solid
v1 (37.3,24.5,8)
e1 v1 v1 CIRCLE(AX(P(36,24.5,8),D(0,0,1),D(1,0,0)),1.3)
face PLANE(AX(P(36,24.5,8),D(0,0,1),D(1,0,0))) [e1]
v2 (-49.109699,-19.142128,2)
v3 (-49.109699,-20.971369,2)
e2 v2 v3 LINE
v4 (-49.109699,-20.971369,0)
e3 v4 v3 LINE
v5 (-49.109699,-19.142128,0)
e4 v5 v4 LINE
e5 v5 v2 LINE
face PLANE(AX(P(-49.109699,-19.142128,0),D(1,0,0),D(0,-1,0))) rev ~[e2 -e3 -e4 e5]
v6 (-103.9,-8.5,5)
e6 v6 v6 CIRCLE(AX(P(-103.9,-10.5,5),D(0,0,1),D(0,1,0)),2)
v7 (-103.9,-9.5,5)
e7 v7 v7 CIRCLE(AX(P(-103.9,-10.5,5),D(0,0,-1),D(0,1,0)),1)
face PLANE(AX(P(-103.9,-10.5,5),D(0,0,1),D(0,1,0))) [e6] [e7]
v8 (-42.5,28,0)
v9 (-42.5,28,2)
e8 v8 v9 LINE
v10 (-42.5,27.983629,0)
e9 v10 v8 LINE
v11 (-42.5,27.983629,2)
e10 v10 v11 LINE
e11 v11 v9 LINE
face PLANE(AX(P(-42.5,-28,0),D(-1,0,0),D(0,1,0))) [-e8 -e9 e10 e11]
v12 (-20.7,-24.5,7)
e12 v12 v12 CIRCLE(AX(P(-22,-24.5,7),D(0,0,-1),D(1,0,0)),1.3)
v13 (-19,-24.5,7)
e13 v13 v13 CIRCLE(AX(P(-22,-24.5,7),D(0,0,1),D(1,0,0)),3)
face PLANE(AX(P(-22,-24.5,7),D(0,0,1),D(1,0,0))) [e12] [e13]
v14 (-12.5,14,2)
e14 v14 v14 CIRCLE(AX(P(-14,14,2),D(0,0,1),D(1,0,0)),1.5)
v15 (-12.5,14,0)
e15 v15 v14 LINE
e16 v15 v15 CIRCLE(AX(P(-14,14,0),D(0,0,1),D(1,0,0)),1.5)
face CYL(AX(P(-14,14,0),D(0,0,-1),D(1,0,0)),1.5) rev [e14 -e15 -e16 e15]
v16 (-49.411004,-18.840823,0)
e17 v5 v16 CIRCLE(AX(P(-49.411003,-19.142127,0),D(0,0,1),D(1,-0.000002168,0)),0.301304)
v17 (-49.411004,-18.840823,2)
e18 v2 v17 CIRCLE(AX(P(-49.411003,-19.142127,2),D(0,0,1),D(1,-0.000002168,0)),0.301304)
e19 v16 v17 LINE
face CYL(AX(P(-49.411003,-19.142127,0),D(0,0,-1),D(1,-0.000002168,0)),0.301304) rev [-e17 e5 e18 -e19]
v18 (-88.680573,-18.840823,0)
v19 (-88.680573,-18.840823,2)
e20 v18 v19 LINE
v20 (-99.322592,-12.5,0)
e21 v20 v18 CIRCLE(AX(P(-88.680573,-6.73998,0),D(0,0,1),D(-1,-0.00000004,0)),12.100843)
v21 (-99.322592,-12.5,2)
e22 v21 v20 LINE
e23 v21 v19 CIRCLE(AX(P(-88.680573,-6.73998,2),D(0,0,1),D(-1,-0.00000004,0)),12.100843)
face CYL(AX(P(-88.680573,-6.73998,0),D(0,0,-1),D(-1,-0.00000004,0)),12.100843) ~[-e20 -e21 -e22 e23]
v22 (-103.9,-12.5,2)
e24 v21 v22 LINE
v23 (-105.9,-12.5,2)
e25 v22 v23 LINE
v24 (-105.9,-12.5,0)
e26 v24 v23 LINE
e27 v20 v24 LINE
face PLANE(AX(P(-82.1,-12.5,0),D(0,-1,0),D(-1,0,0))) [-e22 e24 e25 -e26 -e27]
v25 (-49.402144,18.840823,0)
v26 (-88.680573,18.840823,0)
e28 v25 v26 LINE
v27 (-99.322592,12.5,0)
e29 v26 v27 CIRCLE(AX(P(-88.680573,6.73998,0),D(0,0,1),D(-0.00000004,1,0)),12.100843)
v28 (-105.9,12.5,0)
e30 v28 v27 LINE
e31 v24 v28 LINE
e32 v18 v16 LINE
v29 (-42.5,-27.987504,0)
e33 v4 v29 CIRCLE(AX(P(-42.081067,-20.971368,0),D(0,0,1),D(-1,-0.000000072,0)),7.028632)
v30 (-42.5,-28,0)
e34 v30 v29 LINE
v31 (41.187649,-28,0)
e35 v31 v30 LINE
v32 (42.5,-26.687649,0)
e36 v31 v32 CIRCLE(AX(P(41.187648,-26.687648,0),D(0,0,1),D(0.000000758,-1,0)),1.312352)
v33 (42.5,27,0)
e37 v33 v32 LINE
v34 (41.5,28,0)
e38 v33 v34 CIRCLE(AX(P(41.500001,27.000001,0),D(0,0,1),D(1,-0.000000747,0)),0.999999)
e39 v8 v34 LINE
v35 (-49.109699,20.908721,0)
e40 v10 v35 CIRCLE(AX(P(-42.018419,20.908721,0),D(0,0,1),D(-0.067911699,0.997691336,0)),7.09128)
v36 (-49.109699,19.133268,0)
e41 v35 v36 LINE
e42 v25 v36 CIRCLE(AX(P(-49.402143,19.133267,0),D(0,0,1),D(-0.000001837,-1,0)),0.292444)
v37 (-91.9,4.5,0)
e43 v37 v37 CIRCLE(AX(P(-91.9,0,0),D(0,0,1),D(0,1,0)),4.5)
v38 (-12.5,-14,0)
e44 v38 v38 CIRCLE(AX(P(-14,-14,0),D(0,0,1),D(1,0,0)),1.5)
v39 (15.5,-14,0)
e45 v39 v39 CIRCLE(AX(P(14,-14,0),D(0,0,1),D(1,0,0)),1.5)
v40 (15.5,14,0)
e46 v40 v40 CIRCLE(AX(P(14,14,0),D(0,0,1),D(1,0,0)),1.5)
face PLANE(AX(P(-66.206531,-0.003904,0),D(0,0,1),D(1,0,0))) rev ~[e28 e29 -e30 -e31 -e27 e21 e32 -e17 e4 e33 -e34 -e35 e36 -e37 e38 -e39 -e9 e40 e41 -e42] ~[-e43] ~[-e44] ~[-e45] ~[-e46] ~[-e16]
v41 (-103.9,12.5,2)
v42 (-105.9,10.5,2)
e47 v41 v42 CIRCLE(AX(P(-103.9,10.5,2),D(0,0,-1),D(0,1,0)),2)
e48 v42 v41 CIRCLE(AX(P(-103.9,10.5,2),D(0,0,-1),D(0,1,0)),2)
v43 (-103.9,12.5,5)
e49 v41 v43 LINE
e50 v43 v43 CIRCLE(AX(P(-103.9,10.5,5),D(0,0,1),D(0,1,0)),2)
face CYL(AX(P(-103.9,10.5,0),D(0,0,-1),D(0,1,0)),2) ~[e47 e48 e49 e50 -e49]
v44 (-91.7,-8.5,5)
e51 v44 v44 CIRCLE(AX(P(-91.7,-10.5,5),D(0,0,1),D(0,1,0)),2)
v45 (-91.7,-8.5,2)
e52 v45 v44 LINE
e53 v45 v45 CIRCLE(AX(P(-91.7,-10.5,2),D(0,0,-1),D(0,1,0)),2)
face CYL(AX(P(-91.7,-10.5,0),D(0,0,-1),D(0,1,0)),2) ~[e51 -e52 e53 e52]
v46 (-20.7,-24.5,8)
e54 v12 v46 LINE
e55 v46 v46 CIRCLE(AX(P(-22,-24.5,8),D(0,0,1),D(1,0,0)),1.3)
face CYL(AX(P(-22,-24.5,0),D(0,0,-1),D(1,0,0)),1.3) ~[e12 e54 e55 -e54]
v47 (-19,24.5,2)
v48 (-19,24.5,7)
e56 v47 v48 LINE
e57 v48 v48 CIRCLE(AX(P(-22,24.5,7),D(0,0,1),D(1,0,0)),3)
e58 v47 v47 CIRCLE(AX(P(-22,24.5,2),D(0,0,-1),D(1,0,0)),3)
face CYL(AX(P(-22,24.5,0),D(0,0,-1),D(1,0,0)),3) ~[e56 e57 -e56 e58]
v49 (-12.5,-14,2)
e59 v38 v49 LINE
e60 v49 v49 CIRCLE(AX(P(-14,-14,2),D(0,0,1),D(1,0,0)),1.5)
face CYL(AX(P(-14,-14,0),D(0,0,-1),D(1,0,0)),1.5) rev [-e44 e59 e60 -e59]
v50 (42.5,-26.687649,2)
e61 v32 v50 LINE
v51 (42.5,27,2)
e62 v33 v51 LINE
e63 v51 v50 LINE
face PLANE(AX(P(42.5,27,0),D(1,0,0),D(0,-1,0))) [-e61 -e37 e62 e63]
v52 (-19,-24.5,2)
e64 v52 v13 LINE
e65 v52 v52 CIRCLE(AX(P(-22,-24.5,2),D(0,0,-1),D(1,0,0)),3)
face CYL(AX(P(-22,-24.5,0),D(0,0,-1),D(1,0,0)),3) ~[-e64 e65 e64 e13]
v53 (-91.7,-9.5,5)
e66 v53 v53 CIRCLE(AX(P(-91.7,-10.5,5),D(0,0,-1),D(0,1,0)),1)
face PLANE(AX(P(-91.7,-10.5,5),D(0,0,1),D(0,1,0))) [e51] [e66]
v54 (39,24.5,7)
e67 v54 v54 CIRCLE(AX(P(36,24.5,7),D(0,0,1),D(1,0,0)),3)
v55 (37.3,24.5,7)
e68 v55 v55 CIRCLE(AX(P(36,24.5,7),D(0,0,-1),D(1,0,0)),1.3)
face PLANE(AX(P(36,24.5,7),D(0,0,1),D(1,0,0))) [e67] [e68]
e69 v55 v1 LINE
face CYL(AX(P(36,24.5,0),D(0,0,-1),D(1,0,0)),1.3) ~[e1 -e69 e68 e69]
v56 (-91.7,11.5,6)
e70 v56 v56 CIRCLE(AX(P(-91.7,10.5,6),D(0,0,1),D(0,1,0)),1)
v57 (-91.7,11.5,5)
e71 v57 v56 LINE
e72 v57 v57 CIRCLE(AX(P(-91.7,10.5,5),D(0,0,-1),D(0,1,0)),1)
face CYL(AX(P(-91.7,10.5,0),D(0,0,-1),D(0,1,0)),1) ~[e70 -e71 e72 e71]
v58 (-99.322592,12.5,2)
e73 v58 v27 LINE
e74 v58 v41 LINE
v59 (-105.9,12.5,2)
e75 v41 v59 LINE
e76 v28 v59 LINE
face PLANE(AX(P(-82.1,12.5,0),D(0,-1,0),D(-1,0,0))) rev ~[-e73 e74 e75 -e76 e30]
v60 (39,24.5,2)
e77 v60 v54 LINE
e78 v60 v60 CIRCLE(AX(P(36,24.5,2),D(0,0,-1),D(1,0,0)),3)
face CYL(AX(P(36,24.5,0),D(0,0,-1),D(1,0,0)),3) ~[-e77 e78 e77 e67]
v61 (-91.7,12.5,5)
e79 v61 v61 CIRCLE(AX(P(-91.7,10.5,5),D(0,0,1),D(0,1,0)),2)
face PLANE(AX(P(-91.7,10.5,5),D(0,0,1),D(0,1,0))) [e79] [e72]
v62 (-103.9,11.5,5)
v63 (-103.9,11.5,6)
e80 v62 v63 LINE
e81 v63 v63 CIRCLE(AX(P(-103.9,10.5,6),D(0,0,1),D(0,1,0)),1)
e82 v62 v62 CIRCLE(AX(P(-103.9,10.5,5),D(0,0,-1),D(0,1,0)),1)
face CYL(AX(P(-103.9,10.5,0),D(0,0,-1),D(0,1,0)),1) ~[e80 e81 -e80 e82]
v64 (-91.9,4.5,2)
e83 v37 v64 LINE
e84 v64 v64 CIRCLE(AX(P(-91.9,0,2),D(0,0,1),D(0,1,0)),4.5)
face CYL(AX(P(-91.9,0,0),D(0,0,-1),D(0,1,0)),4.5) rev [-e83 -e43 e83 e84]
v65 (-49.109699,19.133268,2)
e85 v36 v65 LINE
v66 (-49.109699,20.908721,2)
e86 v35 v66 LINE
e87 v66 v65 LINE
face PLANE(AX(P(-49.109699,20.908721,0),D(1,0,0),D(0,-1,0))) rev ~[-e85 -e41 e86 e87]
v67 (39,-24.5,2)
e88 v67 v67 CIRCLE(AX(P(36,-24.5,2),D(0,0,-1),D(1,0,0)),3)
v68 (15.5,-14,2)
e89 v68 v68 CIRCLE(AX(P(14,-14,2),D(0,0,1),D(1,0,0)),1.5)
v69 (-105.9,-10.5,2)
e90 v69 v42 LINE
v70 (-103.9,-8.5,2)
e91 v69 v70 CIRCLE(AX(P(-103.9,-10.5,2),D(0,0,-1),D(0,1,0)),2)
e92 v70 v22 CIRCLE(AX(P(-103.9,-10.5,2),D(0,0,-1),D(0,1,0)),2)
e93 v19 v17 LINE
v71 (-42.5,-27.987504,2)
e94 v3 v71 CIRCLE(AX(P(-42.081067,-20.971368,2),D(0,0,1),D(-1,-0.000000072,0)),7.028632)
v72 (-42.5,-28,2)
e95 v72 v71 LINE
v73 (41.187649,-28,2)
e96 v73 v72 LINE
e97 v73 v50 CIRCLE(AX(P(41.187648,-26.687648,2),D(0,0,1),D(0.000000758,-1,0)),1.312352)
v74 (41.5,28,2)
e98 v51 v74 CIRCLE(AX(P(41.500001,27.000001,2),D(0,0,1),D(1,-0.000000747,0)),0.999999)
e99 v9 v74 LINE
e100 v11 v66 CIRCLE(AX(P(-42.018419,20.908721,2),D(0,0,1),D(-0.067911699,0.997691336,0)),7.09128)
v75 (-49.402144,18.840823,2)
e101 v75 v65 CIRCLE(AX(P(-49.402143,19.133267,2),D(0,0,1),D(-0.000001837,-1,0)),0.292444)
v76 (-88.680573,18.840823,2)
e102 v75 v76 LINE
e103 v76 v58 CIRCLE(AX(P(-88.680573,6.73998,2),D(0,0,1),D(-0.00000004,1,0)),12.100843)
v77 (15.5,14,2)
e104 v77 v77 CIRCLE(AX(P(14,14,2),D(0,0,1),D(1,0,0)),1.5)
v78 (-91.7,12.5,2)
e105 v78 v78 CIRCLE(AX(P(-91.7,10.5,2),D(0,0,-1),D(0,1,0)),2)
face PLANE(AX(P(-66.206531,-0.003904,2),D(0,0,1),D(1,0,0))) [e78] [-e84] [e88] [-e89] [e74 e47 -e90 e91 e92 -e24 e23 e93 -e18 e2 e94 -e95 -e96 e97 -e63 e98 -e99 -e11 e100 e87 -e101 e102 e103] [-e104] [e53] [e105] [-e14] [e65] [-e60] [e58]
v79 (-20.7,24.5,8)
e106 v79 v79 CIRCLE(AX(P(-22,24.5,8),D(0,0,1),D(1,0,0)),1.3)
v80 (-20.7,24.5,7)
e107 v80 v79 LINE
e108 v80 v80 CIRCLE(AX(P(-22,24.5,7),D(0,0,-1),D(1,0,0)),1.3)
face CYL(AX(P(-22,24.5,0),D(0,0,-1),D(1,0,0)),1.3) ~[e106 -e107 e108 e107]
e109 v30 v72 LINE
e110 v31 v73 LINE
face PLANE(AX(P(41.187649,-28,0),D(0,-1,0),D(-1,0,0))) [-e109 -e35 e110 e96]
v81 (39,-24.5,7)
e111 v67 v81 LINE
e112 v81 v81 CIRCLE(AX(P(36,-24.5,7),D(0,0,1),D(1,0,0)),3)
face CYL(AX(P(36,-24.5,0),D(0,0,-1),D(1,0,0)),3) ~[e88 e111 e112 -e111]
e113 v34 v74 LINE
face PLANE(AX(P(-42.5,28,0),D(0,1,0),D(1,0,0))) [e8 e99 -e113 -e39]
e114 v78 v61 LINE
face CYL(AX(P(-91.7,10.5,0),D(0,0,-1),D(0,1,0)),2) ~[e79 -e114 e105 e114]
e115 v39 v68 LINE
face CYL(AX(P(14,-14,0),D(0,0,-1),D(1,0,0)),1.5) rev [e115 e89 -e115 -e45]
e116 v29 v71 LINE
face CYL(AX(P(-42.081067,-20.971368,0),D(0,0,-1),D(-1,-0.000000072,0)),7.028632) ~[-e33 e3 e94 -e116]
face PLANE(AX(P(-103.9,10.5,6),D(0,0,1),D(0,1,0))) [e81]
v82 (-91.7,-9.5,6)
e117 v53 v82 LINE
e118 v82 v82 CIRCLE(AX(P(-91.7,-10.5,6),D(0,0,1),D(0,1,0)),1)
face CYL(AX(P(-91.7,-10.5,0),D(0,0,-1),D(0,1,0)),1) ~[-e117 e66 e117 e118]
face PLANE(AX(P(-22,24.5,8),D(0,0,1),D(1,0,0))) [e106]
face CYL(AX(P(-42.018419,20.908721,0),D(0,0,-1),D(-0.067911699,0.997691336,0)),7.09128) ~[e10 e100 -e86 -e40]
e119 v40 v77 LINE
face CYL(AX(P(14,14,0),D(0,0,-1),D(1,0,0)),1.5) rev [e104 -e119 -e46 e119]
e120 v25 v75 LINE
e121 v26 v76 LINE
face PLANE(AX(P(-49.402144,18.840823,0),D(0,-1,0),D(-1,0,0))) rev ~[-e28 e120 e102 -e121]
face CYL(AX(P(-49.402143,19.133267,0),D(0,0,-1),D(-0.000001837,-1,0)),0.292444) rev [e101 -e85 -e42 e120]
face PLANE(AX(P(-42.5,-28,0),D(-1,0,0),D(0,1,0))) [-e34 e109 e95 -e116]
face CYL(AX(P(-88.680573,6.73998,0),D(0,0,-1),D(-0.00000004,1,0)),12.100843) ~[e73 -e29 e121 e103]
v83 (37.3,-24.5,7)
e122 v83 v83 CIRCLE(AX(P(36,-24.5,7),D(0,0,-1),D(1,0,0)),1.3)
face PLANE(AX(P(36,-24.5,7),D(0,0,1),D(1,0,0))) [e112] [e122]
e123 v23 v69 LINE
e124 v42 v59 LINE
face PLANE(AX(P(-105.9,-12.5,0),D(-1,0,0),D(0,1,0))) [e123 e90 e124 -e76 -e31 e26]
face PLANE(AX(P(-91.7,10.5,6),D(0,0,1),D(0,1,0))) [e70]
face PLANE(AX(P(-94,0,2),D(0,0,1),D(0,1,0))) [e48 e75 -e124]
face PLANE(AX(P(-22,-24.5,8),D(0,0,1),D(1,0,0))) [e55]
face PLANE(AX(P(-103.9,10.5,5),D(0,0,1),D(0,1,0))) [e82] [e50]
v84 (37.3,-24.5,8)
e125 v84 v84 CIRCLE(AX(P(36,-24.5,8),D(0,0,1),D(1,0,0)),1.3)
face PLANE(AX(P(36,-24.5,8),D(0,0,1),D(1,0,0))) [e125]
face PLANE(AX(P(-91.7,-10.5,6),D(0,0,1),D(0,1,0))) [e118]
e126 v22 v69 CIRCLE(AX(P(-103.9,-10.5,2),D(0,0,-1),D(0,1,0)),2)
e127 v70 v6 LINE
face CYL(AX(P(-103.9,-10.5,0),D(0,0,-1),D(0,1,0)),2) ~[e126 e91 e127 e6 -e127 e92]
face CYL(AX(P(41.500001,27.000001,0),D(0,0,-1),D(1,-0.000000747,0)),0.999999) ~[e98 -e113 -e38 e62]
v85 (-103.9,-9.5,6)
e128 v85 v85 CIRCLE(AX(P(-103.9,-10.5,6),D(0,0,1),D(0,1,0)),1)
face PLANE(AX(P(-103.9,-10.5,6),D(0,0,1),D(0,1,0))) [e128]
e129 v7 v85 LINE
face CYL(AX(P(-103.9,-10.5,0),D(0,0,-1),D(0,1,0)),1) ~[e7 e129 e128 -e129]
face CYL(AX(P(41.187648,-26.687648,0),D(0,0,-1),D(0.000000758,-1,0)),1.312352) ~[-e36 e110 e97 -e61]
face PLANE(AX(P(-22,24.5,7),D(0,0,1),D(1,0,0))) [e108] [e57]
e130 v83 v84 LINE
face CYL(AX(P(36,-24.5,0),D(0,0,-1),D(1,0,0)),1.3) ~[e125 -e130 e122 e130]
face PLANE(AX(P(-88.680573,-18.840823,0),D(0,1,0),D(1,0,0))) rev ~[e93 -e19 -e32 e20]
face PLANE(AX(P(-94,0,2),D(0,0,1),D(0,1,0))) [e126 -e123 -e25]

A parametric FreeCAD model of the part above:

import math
import FreeCAD as App
import Part
import Sketcher
from FreeCAD import Vector
Q = App.Units.Quantity


def add_polygon(sketch, points):
    """Adds a closed chain of lines whose ends are joined by coincident constraints."""
    first, n = sketch.GeometryCount, len(points)
    for a, b in zip(points, points[1:] + points[:1]):
        sketch.addGeometry(Part.LineSegment(App.Vector(*a, 0), App.Vector(*b, 0)), False)
    for i in range(n):
        sketch.addConstraint(Sketcher.Constraint("Coincident", first + i, 2, first + (i + 1) % n, 1))

doc = App.newDocument("Part")
body = doc.addObject("PartDesign::Body", "Body")

# Sketch on XY plane
sketch1 = doc.addObject("Sketcher::SketchObject", "Sketch")
body.addObject(sketch1)
sketch1.AttachmentSupport = (doc.XY_Plane, [""])
sketch1.MapMode = "FlatFace"
sketch1.addGeometry(Part.LineSegment(Vector(41.5, 28, 0), Vector(-42.5, 28, 0)), False)
sketch1.addGeometry(Part.LineSegment(Vector(-42.5, 28, 0), Vector(-42.5, -28, 0)), False)
sketch1.addGeometry(Part.LineSegment(Vector(-42.5, -28, 0), Vector(41.2, -28, 0)), False)
sketch1.addGeometry(Part.ArcOfCircle(Part.Circle(Vector(41.2, -26.7, 0), Vector(0, 0, 1), 1.3), math.radians(-90), math.radians(0)), False)
sketch1.addGeometry(Part.LineSegment(Vector(42.5, -26.7, 0), Vector(42.5, 27, 0)), False)
sketch1.addGeometry(Part.ArcOfCircle(Part.Circle(Vector(41.5, 27, 0), Vector(0, 0, 1), 1), math.radians(0), math.radians(90)), False)
sketch1.addGeometry(Part.Circle(Vector(36, -24.5, 0), Vector(0, 0, 1), 1.4), False)
sketch1.addGeometry(Part.Circle(Vector(14, -14, 0), Vector(0, 0, 1), 1.5), False)
sketch1.addGeometry(Part.Circle(Vector(-22, -24.5, 0), Vector(0, 0, 1), 1.4), False)
sketch1.addGeometry(Part.Circle(Vector(-14, -14, 0), Vector(0, 0, 1), 1.5), False)
sketch1.addGeometry(Part.Circle(Vector(36, 24.5, 0), Vector(0, 0, 1), 1.4), False)
sketch1.addGeometry(Part.Circle(Vector(14, 14, 0), Vector(0, 0, 1), 1.5), False)
sketch1.addGeometry(Part.Circle(Vector(-14, 14, 0), Vector(0, 0, 1), 1.5), False)
sketch1.addGeometry(Part.Circle(Vector(-22, 24.5, 0), Vector(0, 0, 1), 1.4), False)
sketch1.addConstraint(Sketcher.Constraint("Coincident", 0, 2, 1, 1))
sketch1.addConstraint(Sketcher.Constraint("Coincident", 1, 2, 2, 1))
sketch1.addConstraint(Sketcher.Constraint("Tangent", 2, 2, 3, 1))
sketch1.addConstraint(Sketcher.Constraint("Tangent", 3, 2, 4, 1))
sketch1.addConstraint(Sketcher.Constraint("Tangent", 4, 2, 5, 1))
sketch1.addConstraint(Sketcher.Constraint("Tangent", 5, 2, 0, 1))
sketch1.addConstraint(Sketcher.Constraint("Horizontal", 0))
sketch1.addConstraint(Sketcher.Constraint("Vertical", 1))
sketch1.addConstraint(Sketcher.Constraint("Horizontal", 2))
sketch1.addConstraint(Sketcher.Constraint("Vertical", 4))
sketch1.addConstraint(Sketcher.Constraint("Equal", 6, 8))
sketch1.addConstraint(Sketcher.Constraint("Equal", 7, 9))
sketch1.addConstraint(Sketcher.Constraint("Equal", 8, 10))
sketch1.addConstraint(Sketcher.Constraint("Equal", 9, 11))
sketch1.addConstraint(Sketcher.Constraint("Equal", 11, 12))
sketch1.addConstraint(Sketcher.Constraint("Equal", 10, 13))
sketch1.addConstraint(Sketcher.Constraint("Symmetric", 9, 3, 11, 3, -1, 1))
sketch1.addConstraint(Sketcher.Constraint("Symmetric", 7, 3, 12, 3, -1, 1))
sketch1.addConstraint(Sketcher.Constraint("Symmetric", 7, 3, 9, 3, -2))
sketch1.addConstraint(Sketcher.Constraint("Symmetric", 6, 3, 10, 3, -1))
sketch1.addConstraint(Sketcher.Constraint("Symmetric", 8, 3, 13, 3, -1))
sketch1.addConstraint(Sketcher.Constraint("Horizontal", 6, 3, 8, 3))
sketch1.addConstraint(Sketcher.Constraint("Diameter", 7, Q("3 mm")))
sketch1.addConstraint(Sketcher.Constraint("Radius", 5, Q("0.999999 mm")))
sketch1.addConstraint(Sketcher.Constraint("Diameter", 6, Q("2.8 mm")))
sketch1.addConstraint(Sketcher.Constraint("DistanceX", 0, 2, 0, 1, Q("84 mm")))
sketch1.addConstraint(Sketcher.Constraint("DistanceY", 1, 2, 1, 1, Q("56 mm")))
sketch1.addConstraint(Sketcher.Constraint("DistanceY", -1, 1, 5, 3, Q("27.000001 mm")))
sketch1.addConstraint(Sketcher.Constraint("DistanceX", -1, 1, 6, 3, Q("36 mm")))
sketch1.addConstraint(Sketcher.Constraint("DistanceX", -1, 1, 7, 3, Q("14 mm")))
sketch1.addConstraint(Sketcher.Constraint("DistanceY", 7, 3, -1, 1, Q("14 mm")))
sketch1.addConstraint(Sketcher.Constraint("DistanceX", 8, 3, -1, 1, Q("22 mm")))
sketch1.addConstraint(Sketcher.Constraint("DistanceY", 6, 3, 10, 3, Q("49 mm")))
sketch1.addConstraint(Sketcher.Constraint("DistanceX", -1, 1, 5, 3, Q("41.500001 mm")))
sketch1.addConstraint(Sketcher.Constraint("Radius", 3, Q("1.312352 mm")))
pad1 = doc.addObject("PartDesign::Pad", "Pad")
body.addObject(pad1)
pad1.Profile = sketch1
pad1.Length = 2
body2 = doc.addObject("PartDesign::Body", "Body001")

# Sketch on XY plane
sketch2 = doc.addObject("Sketcher::SketchObject", "Sketch001")
body2.addObject(sketch2)
sketch2.AttachmentSupport = (doc.getObject("XY_Plane001"), [""])
sketch2.MapMode = "FlatFace"
sketch2.addGeometry(Part.LineSegment(Vector(-49.4, 18.84, 0), Vector(-88.68, 18.84, 0)), False)
sketch2.addGeometry(Part.ArcOfCircle(Part.Circle(Vector(-88.68, 6.74, 0), Vector(0, 0, 1), 12.1), math.radians(90), math.radians(180)), False)
sketch2.addGeometry(Part.LineSegment(Vector(-100.78, 6.74, 0), Vector(-100.78, -6.74, 0)), False)
sketch2.addGeometry(Part.ArcOfCircle(Part.Circle(Vector(-88.68, -6.74, 0), Vector(0, 0, 1), 12.1), math.radians(-180), math.radians(-90)), False)
sketch2.addGeometry(Part.LineSegment(Vector(-88.68, -18.84, 0), Vector(-49.41, -18.84, 0)), False)
sketch2.addGeometry(Part.ArcOfCircle(Part.Circle(Vector(-49.41, -19.14, 0), Vector(0, 0, 1), 0.3), math.radians(0), math.radians(90)), False)
sketch2.addGeometry(Part.LineSegment(Vector(-49.11, -19.14, 0), Vector(-49.11, -20.97, 0)), False)
sketch2.addGeometry(Part.ArcOfCircle(Part.Circle(Vector(-42.08, -20.97, 0), Vector(0, 0, 1), 7.03), math.radians(-180), math.radians(-93)), False)
sketch2.addGeometry(Part.LineSegment(Vector(-42.5, -27.99, 0), Vector(-42.5, 27.98, 0)), False)
sketch2.addGeometry(Part.ArcOfCircle(Part.Circle(Vector(-42.02, 20.91, 0), Vector(0, 0, 1), 7.09), math.radians(94), math.radians(180)), False)
sketch2.addGeometry(Part.LineSegment(Vector(-49.11, 20.91, 0), Vector(-49.11, 19.13, 0)), False)
sketch2.addGeometry(Part.ArcOfCircle(Part.Circle(Vector(-49.4, 19.13, 0), Vector(0, 0, 1), 0.29), math.radians(-90), math.radians(0)), False)
sketch2.addGeometry(Part.Circle(Vector(-91.87, 0, 0), Vector(0, 0, 1), 6.35), False)
sketch2.addConstraint(Sketcher.Constraint("Tangent", 0, 2, 1, 1))
sketch2.addConstraint(Sketcher.Constraint("Tangent", 1, 2, 2, 1))
sketch2.addConstraint(Sketcher.Constraint("Tangent", 2, 2, 3, 1))
sketch2.addConstraint(Sketcher.Constraint("Tangent", 3, 2, 4, 1))
sketch2.addConstraint(Sketcher.Constraint("Coincident", 4, 2, 5, 2))
sketch2.addConstraint(Sketcher.Constraint("Coincident", 5, 1, 6, 1))
sketch2.addConstraint(Sketcher.Constraint("Tangent", 6, 2, 7, 1))
sketch2.addConstraint(Sketcher.Constraint("Coincident", 7, 2, 8, 1))
sketch2.addConstraint(Sketcher.Constraint("Coincident", 8, 2, 9, 1))
sketch2.addConstraint(Sketcher.Constraint("Tangent", 9, 2, 10, 1))
sketch2.addConstraint(Sketcher.Constraint("Tangent", 10, 2, 11, 2))
sketch2.addConstraint(Sketcher.Constraint("Tangent", 11, 1, 0, 1))
sketch2.addConstraint(Sketcher.Constraint("Horizontal", 0))
sketch2.addConstraint(Sketcher.Constraint("Vertical", 2))
sketch2.addConstraint(Sketcher.Constraint("Horizontal", 4))
sketch2.addConstraint(Sketcher.Constraint("Vertical", 6))
sketch2.addConstraint(Sketcher.Constraint("Vertical", 8))
sketch2.addConstraint(Sketcher.Constraint("Vertical", 10))
sketch2.addConstraint(Sketcher.Constraint("Equal", 1, 3))
sketch2.addConstraint(Sketcher.Constraint("PointOnObject", 12, 3, -1))
sketch2.addConstraint(Sketcher.Constraint("Vertical", 5, 3, 4, 2))
sketch2.addConstraint(Sketcher.Constraint("Vertical", 6, 2, 9, 2))
sketch2.addConstraint(Sketcher.Constraint("DistanceX", 7, 2, -1, 1, Q("42.5 mm")))
sketch2.addConstraint(Sketcher.Constraint("Radius", 7, Q("7.028632 mm")))
sketch2.addConstraint(Sketcher.Constraint("Radius", 9, Q("7.09128 mm")))
sketch2.addConstraint(Sketcher.Constraint("Diameter", 12, Q("12.706726 mm")))
sketch2.addConstraint(Sketcher.Constraint("Radius", 1, Q("12.100843 mm")))
sketch2.addConstraint(Sketcher.Constraint("Radius", 5, Q("0.301304 mm")))
sketch2.addConstraint(Sketcher.Constraint("Radius", 11, Q("0.292444 mm")))
sketch2.addConstraint(Sketcher.Constraint("DistanceX", 0, 2, 0, 1, Q("39.278429 mm")))
sketch2.addConstraint(Sketcher.Constraint("DistanceY", 2, 2, 2, 1, Q("13.47996 mm")))
sketch2.addConstraint(Sketcher.Constraint("DistanceY", 6, 2, 6, 1, Q("1.829241 mm")))
sketch2.addConstraint(Sketcher.Constraint("DistanceX", 5, 1, -1, 1, Q("49.109699 mm")))
sketch2.addConstraint(Sketcher.Constraint("DistanceY", 3, 3, 9, 3, Q("27.6487 mm")))
sketch2.addConstraint(Sketcher.Constraint("DistanceY", 8, 1, 8, 2, Q("55.971133 mm")))
sketch2.addConstraint(Sketcher.Constraint("DistanceY", -1, 1, 1, 3, Q("6.73998 mm")))
sketch2.addConstraint(Sketcher.Constraint("DistanceX", 12, 3, 7, 3, Q("49.790309 mm")))
pad2 = doc.addObject("PartDesign::Pad", "Pad001")
body2.addObject(pad2)
pad2.Profile = sketch2
pad2.Length = 2
body3 = doc.addObject("PartDesign::Body", "Body002")

# Sketch on XY plane
sketch3 = doc.addObject("Sketcher::SketchObject", "Sketch002")
body3.addObject(sketch3)
sketch3.AttachmentSupport = (doc.getObject("XY_Plane002"), [""])
sketch3.MapMode = "FlatFace"
sketch3.addGeometry(Part.Circle(Vector(0, 0, 0), Vector(0, 0, 1), 1.3), False)
sketch3.addConstraint(Sketcher.Constraint("Coincident", 0, 3, -1, 1))
sketch3.addConstraint(Sketcher.Constraint("Diameter", 0, Q("2.6 mm")))
pad3 = doc.addObject("PartDesign::Pad", "Pad002")
body3.addObject(pad3)
pad3.Profile = sketch3
pad3.Length = 8
body4 = doc.addObject("PartDesign::Body", "Body003")

# Sketch on XY plane
sketch4 = doc.addObject("Sketcher::SketchObject", "Sketch003")
body4.addObject(sketch4)
sketch4.AttachmentSupport = (doc.getObject("XY_Plane003"), [""])
sketch4.MapMode = "FlatFace"
sketch4.addGeometry(Part.Circle(Vector(0, 0, 0), Vector(0, 0, 1), 3), False)
sketch4.addConstraint(Sketcher.Constraint("Coincident", 0, 3, -1, 1))
sketch4.addConstraint(Sketcher.Constraint("Diameter", 0, Q("6 mm")))
pad4 = doc.addObject("PartDesign::Pad", "Pad003")
body4.addObject(pad4)
pad4.Profile = sketch4
pad4.Length = 7
doc.recompute()

boolean = doc.addObject("PartDesign::Boolean", "Boolean")
body4.addObject(boolean)
boolean.Type = "Fuse"
boolean.addObjects([body3])
body5 = doc.addObject("PartDesign::Body", "Body004")
doc.recompute()

body4.Placement = App.Placement(Vector(-39, 24.5, 0), App.Rotation(Vector(0, 0, 1), 0))
boolean2 = doc.addObject("PartDesign::Boolean", "Boolean001")
body5.addObject(boolean2)
boolean2.Type = "Fuse"
boolean2.addObjects([body4])
body6 = doc.addObject("PartDesign::Body", "Body005")

# Sketch on XY plane
sketch5 = doc.addObject("Sketcher::SketchObject", "Sketch004")
body6.addObject(sketch5)
sketch5.AttachmentSupport = (doc.getObject("XY_Plane005"), [""])
sketch5.MapMode = "FlatFace"
sketch5.addGeometry(Part.Circle(Vector(0, 0, 0), Vector(0, 0, 1), 1.3), False)
sketch5.addConstraint(Sketcher.Constraint("Coincident", 0, 3, -1, 1))
sketch5.addConstraint(Sketcher.Constraint("Diameter", 0, Q("2.6 mm")))
pad5 = doc.addObject("PartDesign::Pad", "Pad004")
body6.addObject(pad5)
pad5.Profile = sketch5
pad5.Length = 8
body7 = doc.addObject("PartDesign::Body", "Body006")

# Sketch on XY plane
sketch6 = doc.addObject("Sketcher::SketchObject", "Sketch005")
body7.addObject(sketch6)
sketch6.AttachmentSupport = (doc.getObject("XY_Plane006"), [""])
sketch6.MapMode = "FlatFace"
sketch6.addGeometry(Part.Circle(Vector(0, 0, 0), Vector(0, 0, 1), 3), False)
sketch6.addConstraint(Sketcher.Constraint("Coincident", 0, 3, -1, 1))
sketch6.addConstraint(Sketcher.Constraint("Diameter", 0, Q("6 mm")))
pad6 = doc.addObject("PartDesign::Pad", "Pad005")
body7.addObject(pad6)
pad6.Profile = sketch6
pad6.Length = 7
doc.recompute()

boolean3 = doc.addObject("PartDesign::Boolean", "Boolean002")
body7.addObject(boolean3)
boolean3.Type = "Fuse"
boolean3.addObjects([body6])
body8 = doc.addObject("PartDesign::Body", "Body007")
body8.AllowCompound = True
doc.recompute()

body7.Placement = App.Placement(Vector(-39, -24.5, 0), App.Rotation(Vector(0, 0, 1), 0))
boolean4 = doc.addObject("PartDesign::Boolean", "Boolean003")
body8.addObject(boolean4)
boolean4.Type = "Fuse"
boolean4.addObjects([body7])
doc.recompute()

boolean5 = doc.addObject("PartDesign::Boolean", "Boolean004")
body8.addObject(boolean5)
boolean5.Type = "Fuse"
boolean5.addObjects([body5])
body9 = doc.addObject("PartDesign::Body", "Body008")
body9.AllowCompound = True
doc.recompute()

body8.Placement = App.Placement(Vector(58, 0, 0), App.Rotation(Vector(0, 0, 1), 0))
boolean6 = doc.addObject("PartDesign::Boolean", "Boolean005")
body9.addObject(boolean6)
boolean6.Type = "Fuse"
boolean6.addObjects([body8])
body10 = doc.addObject("PartDesign::Body", "Body009")

# Sketch on XY plane
sketch7 = doc.addObject("Sketcher::SketchObject", "Sketch006")
body10.addObject(sketch7)
sketch7.AttachmentSupport = (doc.getObject("XY_Plane009"), [""])
sketch7.MapMode = "FlatFace"
sketch7.addGeometry(Part.Circle(Vector(0, 0, 0), Vector(0, 0, 1), 1.3), False)
sketch7.addConstraint(Sketcher.Constraint("Coincident", 0, 3, -1, 1))
sketch7.addConstraint(Sketcher.Constraint("Diameter", 0, Q("2.6 mm")))
pad7 = doc.addObject("PartDesign::Pad", "Pad006")
body10.addObject(pad7)
pad7.Profile = sketch7
pad7.Length = 8
body11 = doc.addObject("PartDesign::Body", "Body010")

# Sketch on XY plane
sketch8 = doc.addObject("Sketcher::SketchObject", "Sketch007")
body11.addObject(sketch8)
sketch8.AttachmentSupport = (doc.getObject("XY_Plane010"), [""])
sketch8.MapMode = "FlatFace"
sketch8.addGeometry(Part.Circle(Vector(0, 0, 0), Vector(0, 0, 1), 3), False)
sketch8.addConstraint(Sketcher.Constraint("Coincident", 0, 3, -1, 1))
sketch8.addConstraint(Sketcher.Constraint("Diameter", 0, Q("6 mm")))
pad8 = doc.addObject("PartDesign::Pad", "Pad007")
body11.addObject(pad8)
pad8.Profile = sketch8
pad8.Length = 7
doc.recompute()

boolean7 = doc.addObject("PartDesign::Boolean", "Boolean006")
body11.addObject(boolean7)
boolean7.Type = "Fuse"
boolean7.addObjects([body10])
body12 = doc.addObject("PartDesign::Body", "Body011")
doc.recompute()

body11.Placement = App.Placement(Vector(-39, 24.5, 0), App.Rotation(Vector(0, 0, 1), 0))
boolean8 = doc.addObject("PartDesign::Boolean", "Boolean007")
body12.addObject(boolean8)
boolean8.Type = "Fuse"
boolean8.addObjects([body11])
body13 = doc.addObject("PartDesign::Body", "Body012")

# Sketch on XY plane
sketch9 = doc.addObject("Sketcher::SketchObject", "Sketch008")
body13.addObject(sketch9)
sketch9.AttachmentSupport = (doc.getObject("XY_Plane012"), [""])
sketch9.MapMode = "FlatFace"
sketch9.addGeometry(Part.Circle(Vector(0, 0, 0), Vector(0, 0, 1), 1.3), False)
sketch9.addConstraint(Sketcher.Constraint("Coincident", 0, 3, -1, 1))
sketch9.addConstraint(Sketcher.Constraint("Diameter", 0, Q("2.6 mm")))
pad9 = doc.addObject("PartDesign::Pad", "Pad008")
body13.addObject(pad9)
pad9.Profile = sketch9
pad9.Length = 8
body14 = doc.addObject("PartDesign::Body", "Body013")

# Sketch on XY plane
sketch10 = doc.addObject("Sketcher::SketchObject", "Sketch009")
body14.addObject(sketch10)
sketch10.AttachmentSupport = (doc.getObject("XY_Plane013"), [""])
sketch10.MapMode = "FlatFace"
sketch10.addGeometry(Part.Circle(Vector(0, 0, 0), Vector(0, 0, 1), 3), False)
sketch10.addConstraint(Sketcher.Constraint("Coincident", 0, 3, -1, 1))
sketch10.addConstraint(Sketcher.Constraint("Diameter", 0, Q("6 mm")))
pad10 = doc.addObject("PartDesign::Pad", "Pad009")
body14.addObject(pad10)
pad10.Profile = sketch10
pad10.Length = 7
doc.recompute()

boolean9 = doc.addObject("PartDesign::Boolean", "Boolean008")
body14.addObject(boolean9)
boolean9.Type = "Fuse"
boolean9.addObjects([body13])
body15 = doc.addObject("PartDesign::Body", "Body014")
body15.AllowCompound = True
doc.recompute()

body14.Placement = App.Placement(Vector(-39, -24.5, 0), App.Rotation(Vector(0, 0, 1), 0))
boolean10 = doc.addObject("PartDesign::Boolean", "Boolean009")
body15.addObject(boolean10)
boolean10.Type = "Fuse"
boolean10.addObjects([body14])
doc.recompute()

boolean11 = doc.addObject("PartDesign::Boolean", "Boolean010")
body15.addObject(boolean11)
boolean11.Type = "Fuse"
boolean11.addObjects([body12])
doc.recompute()

boolean12 = doc.addObject("PartDesign::Boolean", "Boolean011")
body15.addObject(boolean12)
boolean12.Type = "Fuse"
boolean12.addObjects([body9])
body16 = doc.addObject("PartDesign::Body", "Body015")
body16.AllowCompound = True
doc.recompute()

body15.Placement = App.Placement(Vector(17, 0, 0), App.Rotation(Vector(0, 0, 1), 0))
boolean13 = doc.addObject("PartDesign::Boolean", "Boolean012")
body16.addObject(boolean13)
boolean13.Type = "Fuse"
boolean13.addObjects([body15])
body17 = doc.addObject("PartDesign::Body", "Body016")

# Sketch on XY plane
sketch11 = doc.addObject("Sketcher::SketchObject", "Sketch010")
body17.addObject(sketch11)
sketch11.AttachmentSupport = (doc.getObject("XY_Plane016"), [""])
sketch11.MapMode = "FlatFace"
sketch11.addGeometry(Part.Circle(Vector(0, 0, 0), Vector(0, 0, 1), 1), False)
sketch11.addConstraint(Sketcher.Constraint("Coincident", 0, 3, -1, 1))
sketch11.addConstraint(Sketcher.Constraint("Diameter", 0, Q("2 mm")))
pad11 = doc.addObject("PartDesign::Pad", "Pad010")
body17.addObject(pad11)
pad11.Profile = sketch11
pad11.Length = 6
body18 = doc.addObject("PartDesign::Body", "Body017")

# Sketch on XY plane
sketch12 = doc.addObject("Sketcher::SketchObject", "Sketch011")
body18.addObject(sketch12)
sketch12.AttachmentSupport = (doc.getObject("XY_Plane017"), [""])
sketch12.MapMode = "FlatFace"
sketch12.addGeometry(Part.Circle(Vector(0, 0, 0), Vector(0, 0, 1), 2), False)
sketch12.addConstraint(Sketcher.Constraint("Coincident", 0, 3, -1, 1))
sketch12.addConstraint(Sketcher.Constraint("Diameter", 0, Q("4 mm")))
pad12 = doc.addObject("PartDesign::Pad", "Pad011")
body18.addObject(pad12)
pad12.Profile = sketch12
pad12.Length = 5
doc.recompute()

boolean14 = doc.addObject("PartDesign::Boolean", "Boolean013")
body18.addObject(boolean14)
boolean14.Type = "Fuse"
boolean14.addObjects([body17])
body19 = doc.addObject("PartDesign::Body", "Body018")
doc.recompute()

body18.Placement = App.Placement(Vector(10.5, -2.3, 0), App.Rotation(Vector(0, 0, 1), 0))
boolean15 = doc.addObject("PartDesign::Boolean", "Boolean014")
body19.addObject(boolean15)
boolean15.Type = "Fuse"
boolean15.addObjects([body18])
body20 = doc.addObject("PartDesign::Body", "Body019")

# Sketch on XY plane
sketch13 = doc.addObject("Sketcher::SketchObject", "Sketch012")
body20.addObject(sketch13)
sketch13.AttachmentSupport = (doc.getObject("XY_Plane019"), [""])
sketch13.MapMode = "FlatFace"
sketch13.addGeometry(Part.Circle(Vector(0, 0, 0), Vector(0, 0, 1), 1), False)
sketch13.addConstraint(Sketcher.Constraint("Coincident", 0, 3, -1, 1))
sketch13.addConstraint(Sketcher.Constraint("Diameter", 0, Q("2 mm")))
pad13 = doc.addObject("PartDesign::Pad", "Pad012")
body20.addObject(pad13)
pad13.Profile = sketch13
pad13.Length = 6
body21 = doc.addObject("PartDesign::Body", "Body020")

# Sketch on XY plane
sketch14 = doc.addObject("Sketcher::SketchObject", "Sketch013")
body21.addObject(sketch14)
sketch14.AttachmentSupport = (doc.getObject("XY_Plane020"), [""])
sketch14.MapMode = "FlatFace"
sketch14.addGeometry(Part.Circle(Vector(0, 0, 0), Vector(0, 0, 1), 2), False)
sketch14.addConstraint(Sketcher.Constraint("Coincident", 0, 3, -1, 1))
sketch14.addConstraint(Sketcher.Constraint("Diameter", 0, Q("4 mm")))
pad14 = doc.addObject("PartDesign::Pad", "Pad013")
body21.addObject(pad14)
pad14.Profile = sketch14
pad14.Length = 5
doc.recompute()

boolean16 = doc.addObject("PartDesign::Boolean", "Boolean015")
body21.addObject(boolean16)
boolean16.Type = "Fuse"
boolean16.addObjects([body20])
body22 = doc.addObject("PartDesign::Body", "Body021")
body22.AllowCompound = True
doc.recompute()

body21.Placement = App.Placement(Vector(-10.5, -2.3, 0), App.Rotation(Vector(0, 0, 1), 0))
boolean17 = doc.addObject("PartDesign::Boolean", "Boolean016")
body22.addObject(boolean17)
boolean17.Type = "Fuse"
boolean17.addObjects([body21])
doc.recompute()

boolean18 = doc.addObject("PartDesign::Boolean", "Boolean017")
body22.addObject(boolean18)
boolean18.Type = "Fuse"
boolean18.addObjects([body19])
body23 = doc.addObject("PartDesign::Body", "Body022")
body23.AllowCompound = True
doc.recompute()

body22.Placement = App.Placement(Vector(0, 12.2, 0), App.Rotation(Vector(0, 0, 1), 0))
boolean19 = doc.addObject("PartDesign::Boolean", "Boolean018")
body23.addObject(boolean19)
boolean19.Type = "Fuse"
boolean19.addObjects([body22])
body24 = doc.addObject("PartDesign::Body", "Body023")

# Sketch on XY plane
sketch15 = doc.addObject("Sketcher::SketchObject", "Sketch014")
body24.addObject(sketch15)
sketch15.AttachmentSupport = (doc.getObject("XY_Plane023"), [""])
sketch15.MapMode = "FlatFace"
sketch15.addGeometry(Part.Circle(Vector(0, 0, 0), Vector(0, 0, 1), 1), False)
sketch15.addConstraint(Sketcher.Constraint("Coincident", 0, 3, -1, 1))
sketch15.addConstraint(Sketcher.Constraint("Diameter", 0, Q("2 mm")))
pad15 = doc.addObject("PartDesign::Pad", "Pad014")
body24.addObject(pad15)
pad15.Profile = sketch15
pad15.Length = 6
body25 = doc.addObject("PartDesign::Body", "Body024")

# Sketch on XY plane
sketch16 = doc.addObject("Sketcher::SketchObject", "Sketch015")
body25.addObject(sketch16)
sketch16.AttachmentSupport = (doc.getObject("XY_Plane024"), [""])
sketch16.MapMode = "FlatFace"
sketch16.addGeometry(Part.Circle(Vector(0, 0, 0), Vector(0, 0, 1), 2), False)
sketch16.addConstraint(Sketcher.Constraint("Coincident", 0, 3, -1, 1))
sketch16.addConstraint(Sketcher.Constraint("Diameter", 0, Q("4 mm")))
pad16 = doc.addObject("PartDesign::Pad", "Pad015")
body25.addObject(pad16)
pad16.Profile = sketch16
pad16.Length = 5
doc.recompute()

boolean20 = doc.addObject("PartDesign::Boolean", "Boolean019")
body25.addObject(boolean20)
boolean20.Type = "Fuse"
boolean20.addObjects([body24])
body26 = doc.addObject("PartDesign::Body", "Body025")
doc.recompute()

body25.Placement = App.Placement(Vector(10.5, -2.3, 0), App.Rotation(Vector(0, 0, 1), 0))
boolean21 = doc.addObject("PartDesign::Boolean", "Boolean020")
body26.addObject(boolean21)
boolean21.Type = "Fuse"
boolean21.addObjects([body25])
body27 = doc.addObject("PartDesign::Body", "Body026")

# Sketch on XY plane
sketch17 = doc.addObject("Sketcher::SketchObject", "Sketch016")
body27.addObject(sketch17)
sketch17.AttachmentSupport = (doc.getObject("XY_Plane026"), [""])
sketch17.MapMode = "FlatFace"
sketch17.addGeometry(Part.Circle(Vector(0, 0, 0), Vector(0, 0, 1), 1), False)
sketch17.addConstraint(Sketcher.Constraint("Coincident", 0, 3, -1, 1))
sketch17.addConstraint(Sketcher.Constraint("Diameter", 0, Q("2 mm")))
pad17 = doc.addObject("PartDesign::Pad", "Pad016")
body27.addObject(pad17)
pad17.Profile = sketch17
pad17.Length = 6
body28 = doc.addObject("PartDesign::Body", "Body027")

# Sketch on XY plane
sketch18 = doc.addObject("Sketcher::SketchObject", "Sketch017")
body28.addObject(sketch18)
sketch18.AttachmentSupport = (doc.getObject("XY_Plane027"), [""])
sketch18.MapMode = "FlatFace"
sketch18.addGeometry(Part.Circle(Vector(0, 0, 0), Vector(0, 0, 1), 2), False)
sketch18.addConstraint(Sketcher.Constraint("Coincident", 0, 3, -1, 1))
sketch18.addConstraint(Sketcher.Constraint("Diameter", 0, Q("4 mm")))
pad18 = doc.addObject("PartDesign::Pad", "Pad017")
body28.addObject(pad18)
pad18.Profile = sketch18
pad18.Length = 5
doc.recompute()

boolean22 = doc.addObject("PartDesign::Boolean", "Boolean021")
body28.addObject(boolean22)
boolean22.Type = "Fuse"
boolean22.addObjects([body27])
body29 = doc.addObject("PartDesign::Body", "Body028")
body29.AllowCompound = True
doc.recompute()

body28.Placement = App.Placement(Vector(-10.5, -2.3, 0), App.Rotation(Vector(0, 0, 1), 0))
boolean23 = doc.addObject("PartDesign::Boolean", "Boolean022")
body29.addObject(boolean23)
boolean23.Type = "Fuse"
boolean23.addObjects([body28])
doc.recompute()

boolean24 = doc.addObject("PartDesign::Boolean", "Boolean023")
body29.addObject(boolean24)
boolean24.Type = "Fuse"
boolean24.addObjects([body26])
body30 = doc.addObject("PartDesign::Body", "Body029")

# Sketch on XY plane
sketch19 = doc.addObject("Sketcher::SketchObject", "Sketch018")
body30.addObject(sketch19)
sketch19.AttachmentSupport = (doc.getObject("XY_Plane029"), [""])
sketch19.MapMode = "FlatFace"
add_polygon(sketch19, [(-12.5, 11.9), (-12.5, -11.9), (12.5, -11.9), (12.5, 11.9)])  # lines 0-3
sketch19.addGeometry(Part.Circle(Vector(-10.5, -2.3, 0), Vector(0, 0, 1), 1), False)  # 4
sketch19.addGeometry(Part.Circle(Vector(10.5, -2.3, 0), Vector(0, 0, 1), 1), False)  # 5
sketch19.addGeometry(Part.Circle(Vector(0, -2.1, 0), Vector(0, 0, 1), 4.5), False)  # 6
sketch19.addGeometry(Part.Circle(Vector(-10.5, 9.9, 0), Vector(0, 0, 1), 1), False)  # 7
sketch19.addGeometry(Part.Circle(Vector(10.5, 9.9, 0), Vector(0, 0, 1), 1), False)  # 8
sketch19.addConstraint(Sketcher.Constraint("Vertical", 0))
sketch19.addConstraint(Sketcher.Constraint("Horizontal", 1))
sketch19.addConstraint(Sketcher.Constraint("Vertical", 2))
sketch19.addConstraint(Sketcher.Constraint("Horizontal", 3))
sketch19.addConstraint(Sketcher.Constraint("Equal", 4, 5))
sketch19.addConstraint(Sketcher.Constraint("Equal", 5, 7))
sketch19.addConstraint(Sketcher.Constraint("Equal", 7, 8))
sketch19.addConstraint(Sketcher.Constraint("Symmetric", 0, 2, 2, 2, -1, 1))
sketch19.addConstraint(Sketcher.Constraint("Symmetric", 4, 3, 5, 3, -2))
sketch19.addConstraint(Sketcher.Constraint("Symmetric", 7, 3, 8, 3, -2))
sketch19.addConstraint(Sketcher.Constraint("PointOnObject", 6, 3, -2))
sketch19.addConstraint(Sketcher.Constraint("Vertical", 4, 3, 7, 3))
sketch19.addConstraint(Sketcher.Constraint("Diameter", 4, Q("2 mm")))
sketch19.addConstraint(Sketcher.Constraint("Diameter", 6, Q("9 mm")))
sketch19.addConstraint(Sketcher.Constraint("DistanceX", 1, 1, 1, 2, Q("25 mm")))
sketch19.addConstraint(Sketcher.Constraint("DistanceY", 0, 2, 0, 1, Q("23.8 mm")))
sketch19.addConstraint(Sketcher.Constraint("DistanceX", 4, 3, 5, 3, Q("21 mm")))
sketch19.addConstraint(Sketcher.Constraint("DistanceY", 6, 3, 7, 3, Q("12 mm")))
sketch19.addConstraint(Sketcher.Constraint("DistanceY", 8, 3, 2, 2, Q("2 mm")))
sketch19.addConstraint(Sketcher.Constraint("DistanceY", 4, 3, -1, 1, Q("2.3 mm")))
pad19 = doc.addObject("PartDesign::Pad", "Pad018")
body30.addObject(pad19)
pad19.Profile = sketch19
pad19.Length = 2
doc.recompute()

boolean25 = doc.addObject("PartDesign::Boolean", "Boolean024")
body30.addObject(boolean25)
boolean25.Type = "Fuse"
boolean25.addObjects([body23])
doc.recompute()

boolean26 = doc.addObject("PartDesign::Boolean", "Boolean025")
body30.addObject(boolean26)
boolean26.Type = "Fuse"
boolean26.addObjects([body29])
body31 = doc.addObject("PartDesign::Body", "Body030")
body31.AllowCompound = True
doc.recompute()

body30.Placement = App.Placement(Vector(-94, 0, 0), App.Rotation(Vector(0, 0, 1), 90))
boolean27 = doc.addObject("PartDesign::Boolean", "Boolean026")
body31.addObject(boolean27)
boolean27.Type = "Fuse"
boolean27.addObjects([body30])
doc.recompute()

boolean28 = doc.addObject("PartDesign::Boolean", "Boolean027")
body31.addObject(boolean28)
boolean28.Type = "Fuse"
boolean28.addObjects([body])
doc.recompute()

boolean29 = doc.addObject("PartDesign::Boolean", "Boolean028")
body31.addObject(boolean29)
boolean29.Type = "Fuse"
boolean29.addObjects([body2])
doc.recompute()

boolean30 = doc.addObject("PartDesign::Boolean", "Boolean029")
body31.addObject(boolean30)
boolean30.Type = "Fuse"
boolean30.addObjects([body16])

doc.recompute()
